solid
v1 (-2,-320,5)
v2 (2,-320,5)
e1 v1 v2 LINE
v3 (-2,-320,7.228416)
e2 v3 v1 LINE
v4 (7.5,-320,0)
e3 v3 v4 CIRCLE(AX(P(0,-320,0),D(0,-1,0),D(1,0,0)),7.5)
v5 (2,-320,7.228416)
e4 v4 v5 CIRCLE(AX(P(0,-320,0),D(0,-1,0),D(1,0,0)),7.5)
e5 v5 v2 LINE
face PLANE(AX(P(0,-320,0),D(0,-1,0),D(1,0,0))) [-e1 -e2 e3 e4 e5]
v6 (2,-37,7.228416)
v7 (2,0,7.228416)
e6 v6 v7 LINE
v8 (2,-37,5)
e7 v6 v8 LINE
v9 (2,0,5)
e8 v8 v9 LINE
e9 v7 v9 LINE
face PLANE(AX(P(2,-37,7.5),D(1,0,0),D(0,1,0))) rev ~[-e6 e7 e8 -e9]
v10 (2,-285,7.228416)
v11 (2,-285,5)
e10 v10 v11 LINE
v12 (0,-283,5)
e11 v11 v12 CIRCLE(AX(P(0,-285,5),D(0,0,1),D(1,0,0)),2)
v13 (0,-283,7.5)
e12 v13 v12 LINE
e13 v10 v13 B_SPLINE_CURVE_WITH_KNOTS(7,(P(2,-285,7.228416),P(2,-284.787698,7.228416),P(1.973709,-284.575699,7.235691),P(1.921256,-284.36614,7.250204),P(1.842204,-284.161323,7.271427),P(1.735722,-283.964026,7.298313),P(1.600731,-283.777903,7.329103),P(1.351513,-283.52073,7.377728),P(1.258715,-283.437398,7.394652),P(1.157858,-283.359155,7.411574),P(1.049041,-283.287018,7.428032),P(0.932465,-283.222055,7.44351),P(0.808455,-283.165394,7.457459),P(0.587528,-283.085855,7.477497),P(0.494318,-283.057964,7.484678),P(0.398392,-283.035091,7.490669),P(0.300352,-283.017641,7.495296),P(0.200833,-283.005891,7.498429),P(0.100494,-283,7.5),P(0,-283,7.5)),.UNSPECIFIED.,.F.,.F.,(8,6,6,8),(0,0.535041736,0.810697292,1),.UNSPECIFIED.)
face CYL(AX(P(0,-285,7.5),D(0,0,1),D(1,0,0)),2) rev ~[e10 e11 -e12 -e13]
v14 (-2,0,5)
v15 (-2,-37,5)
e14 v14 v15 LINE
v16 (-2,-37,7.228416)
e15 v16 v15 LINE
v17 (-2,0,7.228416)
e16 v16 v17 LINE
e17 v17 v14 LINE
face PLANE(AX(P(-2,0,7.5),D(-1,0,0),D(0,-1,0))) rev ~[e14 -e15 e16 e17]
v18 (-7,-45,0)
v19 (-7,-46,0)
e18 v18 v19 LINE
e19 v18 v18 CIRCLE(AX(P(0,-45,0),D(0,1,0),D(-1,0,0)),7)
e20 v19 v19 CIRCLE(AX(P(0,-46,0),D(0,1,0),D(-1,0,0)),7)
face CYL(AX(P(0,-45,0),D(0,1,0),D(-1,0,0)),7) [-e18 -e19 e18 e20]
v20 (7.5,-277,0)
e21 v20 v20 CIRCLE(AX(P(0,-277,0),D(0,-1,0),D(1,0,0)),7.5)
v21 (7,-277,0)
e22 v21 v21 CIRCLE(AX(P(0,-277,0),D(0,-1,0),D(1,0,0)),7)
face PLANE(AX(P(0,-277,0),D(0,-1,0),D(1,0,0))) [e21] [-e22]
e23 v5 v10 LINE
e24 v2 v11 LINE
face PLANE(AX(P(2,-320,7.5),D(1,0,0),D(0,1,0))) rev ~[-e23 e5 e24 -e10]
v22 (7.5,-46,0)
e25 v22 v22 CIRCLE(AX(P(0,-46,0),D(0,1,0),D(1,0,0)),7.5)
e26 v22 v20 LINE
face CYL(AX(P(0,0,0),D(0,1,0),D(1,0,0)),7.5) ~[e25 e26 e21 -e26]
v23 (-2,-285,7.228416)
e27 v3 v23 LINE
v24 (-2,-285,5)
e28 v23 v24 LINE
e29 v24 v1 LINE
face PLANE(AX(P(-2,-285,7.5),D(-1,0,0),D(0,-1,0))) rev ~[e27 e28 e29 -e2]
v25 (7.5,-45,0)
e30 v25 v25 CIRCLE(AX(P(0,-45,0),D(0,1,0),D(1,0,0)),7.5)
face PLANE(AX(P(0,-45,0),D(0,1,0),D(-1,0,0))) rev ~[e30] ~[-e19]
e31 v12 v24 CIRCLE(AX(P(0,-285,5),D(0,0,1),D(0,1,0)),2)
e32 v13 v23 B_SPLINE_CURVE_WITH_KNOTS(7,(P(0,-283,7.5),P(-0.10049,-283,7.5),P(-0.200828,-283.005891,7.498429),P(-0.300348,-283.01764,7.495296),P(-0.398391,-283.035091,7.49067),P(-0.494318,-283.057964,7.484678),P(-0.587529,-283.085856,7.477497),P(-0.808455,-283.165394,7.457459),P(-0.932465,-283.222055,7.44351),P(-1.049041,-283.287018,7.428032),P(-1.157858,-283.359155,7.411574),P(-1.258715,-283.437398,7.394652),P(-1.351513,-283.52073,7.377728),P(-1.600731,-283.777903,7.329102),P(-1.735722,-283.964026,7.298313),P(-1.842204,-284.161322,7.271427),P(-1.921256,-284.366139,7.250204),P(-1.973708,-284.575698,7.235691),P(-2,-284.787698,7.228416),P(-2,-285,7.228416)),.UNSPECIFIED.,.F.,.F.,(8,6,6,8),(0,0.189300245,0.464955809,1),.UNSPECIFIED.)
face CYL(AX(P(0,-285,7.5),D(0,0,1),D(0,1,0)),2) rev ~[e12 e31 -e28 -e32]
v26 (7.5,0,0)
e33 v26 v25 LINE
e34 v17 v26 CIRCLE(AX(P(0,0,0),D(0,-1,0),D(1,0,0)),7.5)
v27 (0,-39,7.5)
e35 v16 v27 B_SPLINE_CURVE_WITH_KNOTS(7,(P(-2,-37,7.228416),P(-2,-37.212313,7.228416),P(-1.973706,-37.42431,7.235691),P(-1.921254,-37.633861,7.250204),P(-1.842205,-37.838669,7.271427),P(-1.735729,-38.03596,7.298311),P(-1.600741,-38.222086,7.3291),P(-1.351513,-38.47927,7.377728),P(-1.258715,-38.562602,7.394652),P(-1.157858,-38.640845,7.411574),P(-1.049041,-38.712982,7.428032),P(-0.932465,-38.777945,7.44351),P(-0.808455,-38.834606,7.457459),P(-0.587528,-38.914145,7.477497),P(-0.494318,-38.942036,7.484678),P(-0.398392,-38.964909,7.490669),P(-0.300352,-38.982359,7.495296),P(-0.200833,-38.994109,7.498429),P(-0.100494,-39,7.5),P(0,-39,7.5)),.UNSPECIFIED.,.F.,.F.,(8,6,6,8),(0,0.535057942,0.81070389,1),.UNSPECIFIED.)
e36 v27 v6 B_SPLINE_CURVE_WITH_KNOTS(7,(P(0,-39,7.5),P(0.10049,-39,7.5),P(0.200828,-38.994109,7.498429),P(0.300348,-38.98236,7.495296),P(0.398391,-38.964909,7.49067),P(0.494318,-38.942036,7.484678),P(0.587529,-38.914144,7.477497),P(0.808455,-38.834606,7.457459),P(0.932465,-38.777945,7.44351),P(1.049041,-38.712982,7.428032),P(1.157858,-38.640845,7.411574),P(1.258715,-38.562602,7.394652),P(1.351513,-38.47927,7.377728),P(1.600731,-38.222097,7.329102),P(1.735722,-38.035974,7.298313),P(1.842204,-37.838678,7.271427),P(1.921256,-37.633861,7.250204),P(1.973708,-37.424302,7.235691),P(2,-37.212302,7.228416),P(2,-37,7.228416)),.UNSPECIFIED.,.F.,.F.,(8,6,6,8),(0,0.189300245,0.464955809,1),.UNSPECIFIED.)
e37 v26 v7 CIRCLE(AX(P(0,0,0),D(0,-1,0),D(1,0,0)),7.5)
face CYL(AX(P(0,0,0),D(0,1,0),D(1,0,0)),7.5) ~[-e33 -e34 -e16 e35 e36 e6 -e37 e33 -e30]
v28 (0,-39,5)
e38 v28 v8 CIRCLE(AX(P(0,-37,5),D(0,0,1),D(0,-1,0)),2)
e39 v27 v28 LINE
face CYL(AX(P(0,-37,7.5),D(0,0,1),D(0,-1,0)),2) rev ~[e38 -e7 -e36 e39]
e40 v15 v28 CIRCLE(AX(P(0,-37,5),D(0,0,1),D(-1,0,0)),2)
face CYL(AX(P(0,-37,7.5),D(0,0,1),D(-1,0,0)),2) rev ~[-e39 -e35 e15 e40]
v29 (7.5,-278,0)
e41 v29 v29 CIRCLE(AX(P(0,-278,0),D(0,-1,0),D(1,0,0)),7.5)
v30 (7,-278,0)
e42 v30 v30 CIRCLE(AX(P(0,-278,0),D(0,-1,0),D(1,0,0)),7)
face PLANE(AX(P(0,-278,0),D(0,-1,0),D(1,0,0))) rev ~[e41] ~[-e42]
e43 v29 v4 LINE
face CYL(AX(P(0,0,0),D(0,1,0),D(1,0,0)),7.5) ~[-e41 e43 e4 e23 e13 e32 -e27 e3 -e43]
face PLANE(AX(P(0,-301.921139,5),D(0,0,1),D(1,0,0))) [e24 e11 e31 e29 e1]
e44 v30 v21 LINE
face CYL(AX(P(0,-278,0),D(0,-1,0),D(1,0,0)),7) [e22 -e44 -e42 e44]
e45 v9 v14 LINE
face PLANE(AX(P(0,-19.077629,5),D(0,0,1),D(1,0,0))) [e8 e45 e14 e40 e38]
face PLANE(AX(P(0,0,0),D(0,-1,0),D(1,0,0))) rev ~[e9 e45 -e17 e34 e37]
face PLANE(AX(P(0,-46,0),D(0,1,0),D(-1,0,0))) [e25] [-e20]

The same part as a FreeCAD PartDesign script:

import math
import FreeCAD as App
import Part
import Sketcher
from FreeCAD import Vector
Q = App.Units.Quantity

doc = App.newDocument("Part")
body = doc.addObject("PartDesign::Body", "Body")

# Sketch on XZ plane
sketch1 = body.newObject("Sketcher::SketchObject", "Sketch")
sketch1.AttachmentSupport = (doc.getObject("XZ_Plane"), [""])
sketch1.MapMode = "FlatFace"
sketch1.addGeometry(Part.Circle(Vector(0, 0, 0), Vector(0, 0, 1), 7.5), False)
sketch1.addConstraint([
    Sketcher.Constraint("Coincident", 0, 3, -1, 1),
    Sketcher.Constraint("Diameter", 0, Q("15 mm")),
])
pad1 = body.newObject("PartDesign::Pad", "Pad")
pad1.Profile = sketch1
pad1.Length = 320

# Sketch on XY plane
sketch2 = body.newObject("Sketcher::SketchObject", "Sketch001")
sketch2.AttachmentSupport = (doc.getObject("XY_Plane"), [""])
sketch2.MapMode = "FlatFace"
sketch2.AttachmentOffset = App.Placement(Vector(0, 0, 7.5), App.Rotation())
sketch2.addGeometry([
    Part.LineSegment(Vector(2, 0, 0), Vector(-2, 0, 0)),  # 0
    Part.LineSegment(Vector(-2, 0, 0), Vector(-2, -37, 0)),  # 1
    Part.ArcOfCircle(Part.Circle(Vector(0, -37, 0), Vector(0, 0, 1), 2), math.radians(180), math.radians(270)),  # 2
    Part.ArcOfCircle(Part.Circle(Vector(0, -37, 0), Vector(0, 0, 1), 2), math.radians(-90), math.radians(0)),  # 3
    Part.LineSegment(Vector(2, -37, 0), Vector(2, 0, 0)),  # 4
    Part.LineSegment(Vector(-2, -320, 0), Vector(2, -320, 0)),  # 5
    Part.LineSegment(Vector(2, -320, 0), Vector(2, -285, 0)),  # 6
    Part.ArcOfCircle(Part.Circle(Vector(0, -285, 0), Vector(0, 0, 1), 2), math.radians(0), math.radians(90)),  # 7
    Part.ArcOfCircle(Part.Circle(Vector(0, -285, 0), Vector(0, 0, 1), 2), math.radians(90), math.radians(180)),  # 8
    Part.LineSegment(Vector(-2, -285, 0), Vector(-2, -320, 0)),  # 9
], False)
sketch2.addConstraint([
    Sketcher.Constraint("Coincident", 0, 2, 1, 1),
    Sketcher.Constraint("Tangent", 1, 2, 2, 1),
    Sketcher.Constraint("Tangent", 2, 2, 3, 1),
    Sketcher.Constraint("Tangent", 3, 2, 4, 1),
    Sketcher.Constraint("Coincident", 4, 2, 0, 1),
    Sketcher.Constraint("Coincident", 5, 2, 6, 1),
    Sketcher.Constraint("Tangent", 6, 2, 7, 1),
    Sketcher.Constraint("Tangent", 7, 2, 8, 1),
    Sketcher.Constraint("Tangent", 8, 2, 9, 1),
    Sketcher.Constraint("Coincident", 9, 2, 5, 1),
    Sketcher.Constraint("Horizontal", 0),
    Sketcher.Constraint("Vertical", 1),
    Sketcher.Constraint("Vertical", 4),
    Sketcher.Constraint("Horizontal", 5),
    Sketcher.Constraint("Vertical", 6),
    Sketcher.Constraint("Vertical", 9),
    Sketcher.Constraint("Equal", 2, 3),
    Sketcher.Constraint("Equal", 3, 7),
    Sketcher.Constraint("Equal", 7, 8),
    Sketcher.Constraint("Symmetric", 0, 2, 4, 2, -1, 1),
    Sketcher.Constraint("PointOnObject", 7, 3, -2),
    Sketcher.Constraint("PointOnObject", 2, 2, -2),
    Sketcher.Constraint("PointOnObject", 7, 2, -2),
    Sketcher.Constraint("Radius", 2, Q("2 mm")),
    Sketcher.Constraint("DistanceY", 1, 2, 1, 1, Q("37 mm")),
    Sketcher.Constraint("DistanceY", 6, 1, 6, 2, Q("35 mm")),
    Sketcher.Constraint("DistanceY", 7, 3, -1, 1, Q("285 mm")),
])
pocket1 = body.newObject("PartDesign::Pocket", "Pocket")
pocket1.Profile = sketch2
pocket1.Length = 2.5

# Sketch on XZ plane
sketch3 = body.newObject("Sketcher::SketchObject", "Sketch002")
sketch3.AttachmentSupport = (doc.getObject("XZ_Plane"), [""])
sketch3.MapMode = "FlatFace"
sketch3.AttachmentOffset = App.Placement(Vector(0, 0, 278), App.Rotation())
sketch3.addGeometry([
    Part.Circle(Vector(0, 0, 0), Vector(0, 0, 1), 7.5),
    Part.Circle(Vector(0, 0, 0), Vector(0, 0, 1), 7),
], False)
sketch3.addConstraint([
    Sketcher.Constraint("Coincident", 0, 3, -1, 1),
    Sketcher.Constraint("Coincident", 1, 3, -1, 1),
    Sketcher.Constraint("Diameter", 0, Q("15 mm")),
    Sketcher.Constraint("Diameter", 1, Q("14 mm")),
])
pocket2 = body.newObject("PartDesign::Pocket", "Pocket001")
pocket2.Profile = sketch3
pocket2.Length = 1

# Sketch on XZ plane
sketch4 = body.newObject("Sketcher::SketchObject", "Sketch003")
sketch4.AttachmentSupport = (doc.getObject("XZ_Plane"), [""])
sketch4.MapMode = "FlatFace"
sketch4.AttachmentOffset = App.Placement(Vector(0, 0, 45), App.Rotation())
sketch4.addGeometry([
    Part.Circle(Vector(0, 0, 0), Vector(0, 0, 1), 7.5),
    Part.Circle(Vector(0, 0, 0), Vector(0, 0, 1), 7),
], False)
sketch4.addConstraint([
    Sketcher.Constraint("Coincident", 0, 3, -1, 1),
    Sketcher.Constraint("Coincident", 1, 3, -1, 1),
    Sketcher.Constraint("Diameter", 0, Q("15 mm")),
    Sketcher.Constraint("Diameter", 1, Q("14 mm")),
])
pocket3 = body.newObject("PartDesign::Pocket", "Pocket002")
pocket3.Profile = sketch4
pocket3.Length = 1
pocket3.Reversed = True

doc.recompute()
